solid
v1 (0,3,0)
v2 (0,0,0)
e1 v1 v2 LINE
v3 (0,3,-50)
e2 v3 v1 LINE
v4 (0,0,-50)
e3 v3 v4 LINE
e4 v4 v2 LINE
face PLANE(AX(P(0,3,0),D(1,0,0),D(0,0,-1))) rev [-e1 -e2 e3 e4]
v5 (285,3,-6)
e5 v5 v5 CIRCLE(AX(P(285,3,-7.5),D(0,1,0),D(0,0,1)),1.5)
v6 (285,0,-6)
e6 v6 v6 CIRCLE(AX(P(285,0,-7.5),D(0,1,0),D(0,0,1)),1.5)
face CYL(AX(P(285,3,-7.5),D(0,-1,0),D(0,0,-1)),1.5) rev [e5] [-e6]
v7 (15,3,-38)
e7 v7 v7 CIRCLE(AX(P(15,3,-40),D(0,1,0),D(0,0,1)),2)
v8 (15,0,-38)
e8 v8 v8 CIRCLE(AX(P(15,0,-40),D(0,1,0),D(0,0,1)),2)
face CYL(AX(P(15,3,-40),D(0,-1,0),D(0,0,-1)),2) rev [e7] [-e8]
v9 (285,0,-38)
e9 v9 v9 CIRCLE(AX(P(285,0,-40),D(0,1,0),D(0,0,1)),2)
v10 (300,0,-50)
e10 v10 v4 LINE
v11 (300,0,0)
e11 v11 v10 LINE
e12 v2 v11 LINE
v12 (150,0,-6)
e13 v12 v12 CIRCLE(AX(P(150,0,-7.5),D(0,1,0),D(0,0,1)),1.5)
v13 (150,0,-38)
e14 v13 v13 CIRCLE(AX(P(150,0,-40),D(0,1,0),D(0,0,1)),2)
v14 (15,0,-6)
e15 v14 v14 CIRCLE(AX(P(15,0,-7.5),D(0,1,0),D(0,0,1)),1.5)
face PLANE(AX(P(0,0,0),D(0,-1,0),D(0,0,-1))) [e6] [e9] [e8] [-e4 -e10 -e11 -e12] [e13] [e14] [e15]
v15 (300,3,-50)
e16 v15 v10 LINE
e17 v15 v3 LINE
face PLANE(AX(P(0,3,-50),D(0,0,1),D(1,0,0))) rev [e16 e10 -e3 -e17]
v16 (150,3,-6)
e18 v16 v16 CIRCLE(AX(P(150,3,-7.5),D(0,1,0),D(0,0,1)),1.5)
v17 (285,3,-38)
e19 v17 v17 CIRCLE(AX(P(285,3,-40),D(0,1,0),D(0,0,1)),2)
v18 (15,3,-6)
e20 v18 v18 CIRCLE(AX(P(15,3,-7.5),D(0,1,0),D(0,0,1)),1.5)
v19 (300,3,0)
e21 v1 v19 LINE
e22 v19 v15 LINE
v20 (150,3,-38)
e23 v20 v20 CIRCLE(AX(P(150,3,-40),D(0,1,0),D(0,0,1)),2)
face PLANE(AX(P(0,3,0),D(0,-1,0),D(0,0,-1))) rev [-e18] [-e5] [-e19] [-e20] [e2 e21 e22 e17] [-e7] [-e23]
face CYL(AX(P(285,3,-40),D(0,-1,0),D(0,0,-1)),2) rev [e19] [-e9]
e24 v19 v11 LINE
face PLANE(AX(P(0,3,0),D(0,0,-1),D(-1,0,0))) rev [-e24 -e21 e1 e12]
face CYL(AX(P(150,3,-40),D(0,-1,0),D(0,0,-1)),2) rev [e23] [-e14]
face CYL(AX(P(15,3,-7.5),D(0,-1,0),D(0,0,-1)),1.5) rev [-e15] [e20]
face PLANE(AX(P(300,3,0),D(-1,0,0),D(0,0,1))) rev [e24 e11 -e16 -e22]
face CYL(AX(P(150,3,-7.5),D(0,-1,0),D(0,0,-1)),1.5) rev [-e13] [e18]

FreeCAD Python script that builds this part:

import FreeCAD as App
import Part
import Sketcher

V = App.Vector
Q = App.Units.Quantity


def add_polygon(sketch, points):
    """Adds a closed chain of lines whose ends are joined by coincident constraints."""
    first, n = sketch.GeometryCount, len(points)
    for a, b in zip(points, points[1:] + points[:1]):
        sketch.addGeometry(Part.LineSegment(App.Vector(*a, 0), App.Vector(*b, 0)), False)
    for i in range(n):
        sketch.addConstraint(Sketcher.Constraint("Coincident", first + i, 2, first + (i + 1) % n, 1))

doc = App.newDocument("Part")
body = doc.addObject("PartDesign::Body", "Body")

# Sketch on XZ plane
sketch1 = body.newObject("Sketcher::SketchObject", "Sketch")
sketch1.AttachmentSupport = (doc.getObject("XZ_Plane"), [""])
sketch1.MapMode = "FlatFace"
add_polygon(sketch1, [(0, -50), (0, 0), (300, 0), (300, -50)])  # lines 0-3
sketch1.addGeometry(Part.Circle(V(15, -7.5, 0), V(0, 0, 1), 1.5), False)  # 4
sketch1.addGeometry(Part.Circle(V(150, -7.5, 0), V(0, 0, 1), 1.5), False)  # 5
sketch1.addGeometry(Part.Circle(V(285, -7.5, 0), V(0, 0, 1), 1.5), False)  # 6
sketch1.addGeometry(Part.Circle(V(15, -40, 0), V(0, 0, 1), 2), False)  # 7
sketch1.addGeometry(Part.Circle(V(150, -40, 0), V(0, 0, 1), 2), False)  # 8
sketch1.addGeometry(Part.Circle(V(285, -40, 0), V(0, 0, 1), 2), False)  # 9
sketch1.addConstraint([
    Sketcher.Constraint("Vertical", 0),
    Sketcher.Constraint("Horizontal", 1),
    Sketcher.Constraint("Vertical", 2),
    Sketcher.Constraint("Horizontal", 3),
    Sketcher.Constraint("Coincident", 0, 2, -1, 1),
    Sketcher.Constraint("Equal", 4, 5),
    Sketcher.Constraint("Equal", 5, 6),
    Sketcher.Constraint("Equal", 7, 8),
    Sketcher.Constraint("Equal", 8, 9),
    Sketcher.Constraint("Horizontal", 4, 3, 5, 3),
    Sketcher.Constraint("Horizontal", 5, 3, 6, 3),
    Sketcher.Constraint("Horizontal", 7, 3, 8, 3),
    Sketcher.Constraint("Horizontal", 8, 3, 9, 3),
    Sketcher.Constraint("Vertical", 4, 3, 7, 3),
    Sketcher.Constraint("Vertical", 5, 3, 8, 3),
    Sketcher.Constraint("Vertical", 6, 3, 9, 3),
    Sketcher.Constraint("Diameter", 4, Q("3 mm")),
    Sketcher.Constraint("Diameter", 7, Q("4 mm")),
    Sketcher.Constraint("DistanceX", 1, 1, 1, 2, Q("300 mm")),
    Sketcher.Constraint("DistanceY", 0, 1, 0, 2, Q("50 mm")),
    Sketcher.Constraint("DistanceX", -1, 1, 4, 3, Q("15 mm")),
    Sketcher.Constraint("DistanceX", -1, 1, 5, 3, Q("150 mm")),
    Sketcher.Constraint("DistanceX", -1, 1, 6, 3, Q("285 mm")),
    Sketcher.Constraint("DistanceY", 7, 3, -1, 1, Q("40 mm")),
    Sketcher.Constraint("DistanceY", 4, 3, -1, 1, Q("7.5 mm")),
])
pad1 = body.newObject("PartDesign::Pad", "Pad")
pad1.Profile = sketch1
pad1.Length = 3
pad1.Reversed = True

doc.recompute()
